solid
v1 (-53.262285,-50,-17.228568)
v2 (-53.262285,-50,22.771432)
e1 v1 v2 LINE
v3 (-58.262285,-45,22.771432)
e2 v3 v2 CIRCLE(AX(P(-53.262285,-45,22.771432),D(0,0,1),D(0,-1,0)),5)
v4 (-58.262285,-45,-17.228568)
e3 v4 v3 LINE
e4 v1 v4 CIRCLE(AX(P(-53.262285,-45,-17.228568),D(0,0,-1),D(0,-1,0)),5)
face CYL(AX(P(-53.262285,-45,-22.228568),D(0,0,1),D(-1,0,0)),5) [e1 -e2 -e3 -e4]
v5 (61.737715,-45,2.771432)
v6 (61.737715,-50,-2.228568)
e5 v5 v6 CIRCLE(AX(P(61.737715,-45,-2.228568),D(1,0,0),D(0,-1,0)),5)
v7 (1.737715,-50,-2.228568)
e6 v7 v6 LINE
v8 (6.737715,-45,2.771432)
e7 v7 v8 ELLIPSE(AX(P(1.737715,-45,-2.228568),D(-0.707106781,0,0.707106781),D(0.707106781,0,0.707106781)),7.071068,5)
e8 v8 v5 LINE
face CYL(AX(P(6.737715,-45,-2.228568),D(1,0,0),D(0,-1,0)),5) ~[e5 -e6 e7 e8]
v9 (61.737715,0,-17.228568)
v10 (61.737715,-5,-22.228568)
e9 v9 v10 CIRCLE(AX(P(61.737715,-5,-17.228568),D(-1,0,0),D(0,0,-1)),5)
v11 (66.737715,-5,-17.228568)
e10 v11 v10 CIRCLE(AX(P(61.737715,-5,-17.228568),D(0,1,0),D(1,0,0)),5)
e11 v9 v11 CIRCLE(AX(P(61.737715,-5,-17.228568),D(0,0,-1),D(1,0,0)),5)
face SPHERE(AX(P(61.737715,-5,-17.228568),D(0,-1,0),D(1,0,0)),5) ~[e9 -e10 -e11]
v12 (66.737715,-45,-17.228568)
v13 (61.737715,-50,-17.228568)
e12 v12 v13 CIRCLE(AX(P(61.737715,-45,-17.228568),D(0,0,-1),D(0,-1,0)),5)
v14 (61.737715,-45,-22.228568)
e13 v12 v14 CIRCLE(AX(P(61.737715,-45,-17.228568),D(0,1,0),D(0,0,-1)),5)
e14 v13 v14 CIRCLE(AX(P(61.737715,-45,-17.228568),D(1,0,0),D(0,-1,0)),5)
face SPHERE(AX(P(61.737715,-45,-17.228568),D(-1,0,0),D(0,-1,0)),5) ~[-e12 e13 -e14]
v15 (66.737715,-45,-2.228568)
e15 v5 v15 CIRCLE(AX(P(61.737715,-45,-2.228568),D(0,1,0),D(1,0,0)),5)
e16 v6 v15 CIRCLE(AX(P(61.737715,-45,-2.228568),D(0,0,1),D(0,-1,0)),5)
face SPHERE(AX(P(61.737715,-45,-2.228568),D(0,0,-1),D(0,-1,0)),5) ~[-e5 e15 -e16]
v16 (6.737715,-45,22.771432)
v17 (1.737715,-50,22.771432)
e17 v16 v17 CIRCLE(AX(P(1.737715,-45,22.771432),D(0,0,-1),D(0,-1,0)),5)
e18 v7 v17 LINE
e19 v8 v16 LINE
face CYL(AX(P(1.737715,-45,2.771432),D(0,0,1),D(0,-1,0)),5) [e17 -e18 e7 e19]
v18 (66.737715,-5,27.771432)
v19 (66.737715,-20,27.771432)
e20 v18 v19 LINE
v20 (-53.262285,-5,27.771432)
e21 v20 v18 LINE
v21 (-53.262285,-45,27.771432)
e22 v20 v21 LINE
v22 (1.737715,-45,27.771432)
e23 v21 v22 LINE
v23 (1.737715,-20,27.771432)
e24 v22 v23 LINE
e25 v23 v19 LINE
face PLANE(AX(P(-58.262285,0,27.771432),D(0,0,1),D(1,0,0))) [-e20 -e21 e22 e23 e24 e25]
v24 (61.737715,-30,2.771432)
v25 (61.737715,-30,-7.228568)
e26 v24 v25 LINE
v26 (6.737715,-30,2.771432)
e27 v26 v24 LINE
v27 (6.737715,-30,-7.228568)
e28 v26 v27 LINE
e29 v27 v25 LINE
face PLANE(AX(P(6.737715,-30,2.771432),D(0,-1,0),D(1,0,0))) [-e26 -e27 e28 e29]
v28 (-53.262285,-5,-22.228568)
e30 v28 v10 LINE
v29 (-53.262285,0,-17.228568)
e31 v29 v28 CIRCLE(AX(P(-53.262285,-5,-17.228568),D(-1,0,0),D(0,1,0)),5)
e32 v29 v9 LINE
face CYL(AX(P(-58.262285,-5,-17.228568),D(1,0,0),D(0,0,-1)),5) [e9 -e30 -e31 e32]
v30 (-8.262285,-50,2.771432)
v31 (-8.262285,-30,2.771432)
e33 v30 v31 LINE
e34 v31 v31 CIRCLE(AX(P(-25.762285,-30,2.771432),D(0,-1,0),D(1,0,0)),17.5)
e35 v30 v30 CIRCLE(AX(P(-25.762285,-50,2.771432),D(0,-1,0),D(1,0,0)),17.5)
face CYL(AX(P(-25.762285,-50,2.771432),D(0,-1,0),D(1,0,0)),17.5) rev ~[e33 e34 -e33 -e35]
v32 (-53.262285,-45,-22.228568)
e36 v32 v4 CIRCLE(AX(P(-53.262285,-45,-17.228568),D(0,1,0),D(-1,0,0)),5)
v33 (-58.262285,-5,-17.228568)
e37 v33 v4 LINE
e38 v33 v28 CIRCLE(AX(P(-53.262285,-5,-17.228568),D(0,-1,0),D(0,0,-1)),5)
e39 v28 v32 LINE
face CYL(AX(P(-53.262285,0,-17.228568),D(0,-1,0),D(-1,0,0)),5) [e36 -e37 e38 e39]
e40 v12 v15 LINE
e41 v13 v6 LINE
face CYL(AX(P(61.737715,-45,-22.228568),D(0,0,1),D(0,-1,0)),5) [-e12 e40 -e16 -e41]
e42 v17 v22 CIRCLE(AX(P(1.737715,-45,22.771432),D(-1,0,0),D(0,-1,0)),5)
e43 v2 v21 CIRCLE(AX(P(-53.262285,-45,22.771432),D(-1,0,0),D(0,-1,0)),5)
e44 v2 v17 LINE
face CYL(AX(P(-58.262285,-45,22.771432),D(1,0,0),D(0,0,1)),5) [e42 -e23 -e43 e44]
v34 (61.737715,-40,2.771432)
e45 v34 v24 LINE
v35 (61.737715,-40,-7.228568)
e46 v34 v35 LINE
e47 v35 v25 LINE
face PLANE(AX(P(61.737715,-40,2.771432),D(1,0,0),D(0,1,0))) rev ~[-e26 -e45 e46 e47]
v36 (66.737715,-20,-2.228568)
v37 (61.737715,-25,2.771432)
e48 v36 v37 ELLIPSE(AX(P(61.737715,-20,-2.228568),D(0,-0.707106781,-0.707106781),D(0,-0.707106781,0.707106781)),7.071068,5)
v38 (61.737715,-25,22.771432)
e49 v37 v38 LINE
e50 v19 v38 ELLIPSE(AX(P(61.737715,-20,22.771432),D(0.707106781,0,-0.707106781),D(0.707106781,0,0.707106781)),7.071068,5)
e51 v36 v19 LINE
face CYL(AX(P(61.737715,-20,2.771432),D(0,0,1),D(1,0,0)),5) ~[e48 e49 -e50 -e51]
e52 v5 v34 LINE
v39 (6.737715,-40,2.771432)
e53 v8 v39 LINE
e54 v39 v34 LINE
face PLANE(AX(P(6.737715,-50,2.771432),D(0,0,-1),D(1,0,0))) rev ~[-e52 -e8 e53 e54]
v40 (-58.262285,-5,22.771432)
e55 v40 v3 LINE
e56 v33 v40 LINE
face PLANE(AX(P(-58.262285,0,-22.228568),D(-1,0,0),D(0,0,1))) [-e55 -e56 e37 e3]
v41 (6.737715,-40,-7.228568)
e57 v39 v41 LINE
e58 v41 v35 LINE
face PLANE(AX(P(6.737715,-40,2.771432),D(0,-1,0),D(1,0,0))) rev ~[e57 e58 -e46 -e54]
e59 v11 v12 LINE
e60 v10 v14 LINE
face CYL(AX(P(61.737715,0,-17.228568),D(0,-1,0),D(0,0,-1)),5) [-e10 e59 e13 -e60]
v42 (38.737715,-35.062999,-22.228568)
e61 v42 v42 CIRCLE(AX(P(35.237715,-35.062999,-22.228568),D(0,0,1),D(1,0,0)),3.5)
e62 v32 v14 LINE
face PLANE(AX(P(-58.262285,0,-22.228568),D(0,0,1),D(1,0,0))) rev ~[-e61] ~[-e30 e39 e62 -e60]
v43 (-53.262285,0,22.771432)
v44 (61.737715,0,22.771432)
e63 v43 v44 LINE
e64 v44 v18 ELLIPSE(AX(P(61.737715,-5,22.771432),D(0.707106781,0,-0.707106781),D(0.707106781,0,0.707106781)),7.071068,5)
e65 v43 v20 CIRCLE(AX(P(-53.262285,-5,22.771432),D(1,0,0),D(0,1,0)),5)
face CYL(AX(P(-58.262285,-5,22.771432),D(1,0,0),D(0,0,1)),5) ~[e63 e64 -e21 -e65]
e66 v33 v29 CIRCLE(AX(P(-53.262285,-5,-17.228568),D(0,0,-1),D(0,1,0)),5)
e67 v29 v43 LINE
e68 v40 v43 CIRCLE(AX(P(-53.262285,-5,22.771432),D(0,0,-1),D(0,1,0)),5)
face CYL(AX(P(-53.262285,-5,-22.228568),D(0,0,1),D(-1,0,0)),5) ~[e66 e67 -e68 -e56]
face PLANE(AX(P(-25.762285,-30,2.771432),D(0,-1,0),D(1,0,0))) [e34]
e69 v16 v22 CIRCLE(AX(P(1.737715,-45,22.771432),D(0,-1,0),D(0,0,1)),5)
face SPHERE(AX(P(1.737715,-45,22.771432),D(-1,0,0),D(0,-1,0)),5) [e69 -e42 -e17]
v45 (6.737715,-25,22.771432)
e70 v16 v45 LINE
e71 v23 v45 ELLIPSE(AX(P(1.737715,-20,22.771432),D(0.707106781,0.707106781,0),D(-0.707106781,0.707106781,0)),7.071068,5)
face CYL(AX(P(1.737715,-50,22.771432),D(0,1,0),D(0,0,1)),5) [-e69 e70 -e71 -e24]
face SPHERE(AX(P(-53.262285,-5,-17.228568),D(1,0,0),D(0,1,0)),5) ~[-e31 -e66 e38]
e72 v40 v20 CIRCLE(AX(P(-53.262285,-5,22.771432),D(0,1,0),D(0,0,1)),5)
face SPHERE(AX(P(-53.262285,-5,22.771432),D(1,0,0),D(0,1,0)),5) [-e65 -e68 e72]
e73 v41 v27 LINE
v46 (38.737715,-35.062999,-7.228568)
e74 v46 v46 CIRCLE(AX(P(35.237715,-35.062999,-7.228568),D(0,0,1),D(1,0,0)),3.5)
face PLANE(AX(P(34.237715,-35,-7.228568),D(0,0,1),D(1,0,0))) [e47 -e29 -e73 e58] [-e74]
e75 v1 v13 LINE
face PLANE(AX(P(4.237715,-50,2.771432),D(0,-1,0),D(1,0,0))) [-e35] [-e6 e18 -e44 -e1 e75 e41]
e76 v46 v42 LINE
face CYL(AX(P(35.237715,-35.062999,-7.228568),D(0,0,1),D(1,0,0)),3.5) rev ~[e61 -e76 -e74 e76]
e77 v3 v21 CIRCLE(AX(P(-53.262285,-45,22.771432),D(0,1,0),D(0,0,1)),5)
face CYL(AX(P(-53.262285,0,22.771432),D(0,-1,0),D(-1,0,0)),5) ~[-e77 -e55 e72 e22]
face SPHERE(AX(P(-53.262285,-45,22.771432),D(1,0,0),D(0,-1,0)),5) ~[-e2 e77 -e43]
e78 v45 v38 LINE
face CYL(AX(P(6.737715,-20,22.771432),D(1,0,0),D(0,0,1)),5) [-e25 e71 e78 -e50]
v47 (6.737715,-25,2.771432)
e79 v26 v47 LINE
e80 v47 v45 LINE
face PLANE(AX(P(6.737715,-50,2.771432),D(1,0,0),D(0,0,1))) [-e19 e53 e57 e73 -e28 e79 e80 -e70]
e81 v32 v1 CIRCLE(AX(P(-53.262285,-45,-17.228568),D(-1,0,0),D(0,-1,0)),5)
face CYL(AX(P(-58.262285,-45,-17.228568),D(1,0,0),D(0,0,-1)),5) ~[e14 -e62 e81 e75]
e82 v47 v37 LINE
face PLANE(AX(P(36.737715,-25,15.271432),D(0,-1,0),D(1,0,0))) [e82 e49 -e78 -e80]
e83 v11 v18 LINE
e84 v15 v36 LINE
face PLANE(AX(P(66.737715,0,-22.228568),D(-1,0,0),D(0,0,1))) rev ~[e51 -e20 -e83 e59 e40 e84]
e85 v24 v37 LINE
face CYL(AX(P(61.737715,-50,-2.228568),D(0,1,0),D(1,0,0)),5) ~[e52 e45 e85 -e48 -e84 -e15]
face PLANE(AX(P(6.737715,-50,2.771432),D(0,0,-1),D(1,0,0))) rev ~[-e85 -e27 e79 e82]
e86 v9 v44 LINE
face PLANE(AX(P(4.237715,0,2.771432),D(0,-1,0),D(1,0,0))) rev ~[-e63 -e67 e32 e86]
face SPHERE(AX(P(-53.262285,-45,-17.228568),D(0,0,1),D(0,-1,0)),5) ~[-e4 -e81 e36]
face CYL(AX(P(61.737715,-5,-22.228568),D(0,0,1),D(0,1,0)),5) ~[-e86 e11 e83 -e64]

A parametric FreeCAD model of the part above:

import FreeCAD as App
import Part
import Sketcher
Q = App.Units.Quantity


def edges_at(feature, points):
    """Names of the edges that pass closest to the given points."""
    edges = feature.Shape.Edges
    near = lambda p: min(range(len(edges)), key=lambda i: edges[i].distToShape(Part.Vertex(*p))[0])
    return sorted({f"Edge{near(p) + 1}" for p in points})

doc = App.newDocument("Part")
body = doc.addObject("PartDesign::Body", "Body")

# Sketch on XZ plane
sketch1 = body.newObject("Sketcher::SketchObject", "Sketch")
sketch1.AttachmentSupport = (doc.getObject("XZ_Plane"), [""])
sketch1.MapMode = "FlatFace"
sketch1.addGeometry([
    Part.LineSegment(App.Vector(-58, 28, 0), App.Vector(-58, -22, 0)),
    Part.LineSegment(App.Vector(-58, -22, 0), App.Vector(67, -22, 0)),
    Part.LineSegment(App.Vector(67, -22, 0), App.Vector(67, 28, 0)),
    Part.LineSegment(App.Vector(67, 28, 0), App.Vector(-58, 28, 0)),
], False)
sketch1.addConstraint([
    Sketcher.Constraint("Coincident", 0, 2, 1, 1),
    Sketcher.Constraint("Coincident", 1, 2, 2, 1),
    Sketcher.Constraint("Coincident", 2, 2, 3, 1),
    Sketcher.Constraint("Coincident", 3, 2, 0, 1),
    Sketcher.Constraint("Vertical", 0),
    Sketcher.Constraint("Horizontal", 1),
    Sketcher.Constraint("Vertical", 2),
    Sketcher.Constraint("Horizontal", 3),
    Sketcher.Constraint("DistanceX", 1, 1, 1, 2, Q("125 mm")),
    Sketcher.Constraint("DistanceY", 0, 2, 0, 1, Q("50 mm")),
    Sketcher.Constraint("DistanceY", 0, 2, -1, 1, Q("22.228568 mm")),
    Sketcher.Constraint("DistanceX", 0, 2, -1, 1, Q("58.262285 mm")),
])
pad1 = body.newObject("PartDesign::Pad", "Pad")
pad1.Profile = sketch1
pad1.Length = 50

# Sketch on XZ plane
sketch2 = body.newObject("Sketcher::SketchObject", "Sketch001")
sketch2.AttachmentSupport = (doc.getObject("XZ_Plane"), [""])
sketch2.MapMode = "FlatFace"
sketch2.AttachmentOffset = App.Placement(App.Vector(0, 0, 50), App.Rotation())
sketch2.addGeometry([
    Part.LineSegment(App.Vector(7, 28, 0), App.Vector(7, 3, 0)),
    Part.LineSegment(App.Vector(7, 3, 0), App.Vector(67, 3, 0)),
    Part.LineSegment(App.Vector(67, 3, 0), App.Vector(67, 28, 0)),
    Part.LineSegment(App.Vector(67, 28, 0), App.Vector(7, 28, 0)),
], False)
sketch2.addConstraint([
    Sketcher.Constraint("Coincident", 0, 2, 1, 1),
    Sketcher.Constraint("Coincident", 1, 2, 2, 1),
    Sketcher.Constraint("Coincident", 2, 2, 3, 1),
    Sketcher.Constraint("Coincident", 3, 2, 0, 1),
    Sketcher.Constraint("Vertical", 0),
    Sketcher.Constraint("Horizontal", 1),
    Sketcher.Constraint("Vertical", 2),
    Sketcher.Constraint("Horizontal", 3),
    Sketcher.Constraint("DistanceX", 1, 1, 1, 2, Q("60 mm")),
    Sketcher.Constraint("DistanceY", 0, 2, 0, 1, Q("25 mm")),
    Sketcher.Constraint("DistanceY", -1, 1, 0, 2, Q("2.771432 mm")),
    Sketcher.Constraint("DistanceX", -1, 1, 0, 2, Q("6.737715 mm")),
])
pocket1 = body.newObject("PartDesign::Pocket", "Pocket")
pocket1.Profile = sketch2
pocket1.Length = 25

# Sketch on XZ plane
sketch3 = body.newObject("Sketcher::SketchObject", "Sketch002")
sketch3.AttachmentSupport = (doc.getObject("XZ_Plane"), [""])
sketch3.MapMode = "FlatFace"
sketch3.AttachmentOffset = App.Placement(App.Vector(0, 0, 50), App.Rotation())
sketch3.addGeometry(Part.Circle(App.Vector(-26, 3, 0), App.Vector(0, 0, 1), 18), False)
sketch3.addConstraint([
    Sketcher.Constraint("Diameter", 0, Q("35 mm")),
    Sketcher.Constraint("DistanceY", -1, 1, 0, 3, Q("2.771432 mm")),
    Sketcher.Constraint("DistanceX", 0, 3, -1, 1, Q("25.762285 mm")),
])
pocket2 = body.newObject("PartDesign::Pocket", "Pocket001")
pocket2.Profile = sketch3
pocket2.Length = 20
doc.recompute()

fillet = body.newObject("PartDesign::Fillet", "Fillet")
fillet.Base = (pocket2, edges_at(pocket2, [
    (-25.762, -50, 27.771),
    (-58.262, -50, 2.771),
    (4.238, -50, -22.229),
    (66.738, -50, -9.729),
    (36.738, -50, 2.771),
    (6.738, -50, 15.271),
    (6.738, -37.5, 27.771),
    (36.738, -25, 27.771),
    (66.738, -25, 15.271),
    (66.738, -37.5, 2.771),
    (66.738, -25, -22.229),
    (66.738, 0, 2.771),
    (4.238, 0, 27.771),
    (4.238, 0, -22.229),
    (-58.262, 0, 2.771),
    (-58.262, -25, 27.771),
    (-58.262, -25, -22.229),
]))
fillet.Radius = 5

# Sketch on XY plane
sketch4 = body.newObject("Sketcher::SketchObject", "Sketch003")
sketch4.AttachmentSupport = (doc.getObject("XY_Plane"), [""])
sketch4.MapMode = "FlatFace"
sketch4.AttachmentOffset = App.Placement(App.Vector(0, 0, 2.771432), App.Rotation())
sketch4.addGeometry([
    Part.LineSegment(App.Vector(7, -30, 0), App.Vector(7, -40, 0)),
    Part.LineSegment(App.Vector(7, -40, 0), App.Vector(62, -40, 0)),
    Part.LineSegment(App.Vector(62, -40, 0), App.Vector(62, -30, 0)),
    Part.LineSegment(App.Vector(62, -30, 0), App.Vector(7, -30, 0)),
], False)
sketch4.addConstraint([
    Sketcher.Constraint("Coincident", 0, 2, 1, 1),
    Sketcher.Constraint("Coincident", 1, 2, 2, 1),
    Sketcher.Constraint("Coincident", 2, 2, 3, 1),
    Sketcher.Constraint("Coincident", 3, 2, 0, 1),
    Sketcher.Constraint("Vertical", 0),
    Sketcher.Constraint("Horizontal", 1),
    Sketcher.Constraint("Vertical", 2),
    Sketcher.Constraint("Horizontal", 3),
    Sketcher.Constraint("DistanceX", 1, 1, 1, 2, Q("55 mm")),
    Sketcher.Constraint("DistanceY", 0, 2, 0, 1, Q("10 mm")),
    Sketcher.Constraint("DistanceY", 0, 2, -1, 1, Q("40 mm")),
    Sketcher.Constraint("DistanceX", -1, 1, 0, 2, Q("6.737715 mm")),
])
pocket3 = body.newObject("PartDesign::Pocket", "Pocket002")
pocket3.Profile = sketch4
pocket3.Length = 10

# Sketch on XY plane
sketch5 = body.newObject("Sketcher::SketchObject", "Sketch004")
sketch5.AttachmentSupport = (doc.getObject("XY_Plane"), [""])
sketch5.MapMode = "FlatFace"
sketch5.AttachmentOffset = App.Placement(App.Vector(0, 0, -7.228568), App.Rotation())
sketch5.addGeometry(Part.Circle(App.Vector(35.2, -35.1, 0), App.Vector(0, 0, 1), 3.5), False)
sketch5.addConstraint([
    Sketcher.Constraint("Diameter", 0, Q("7 mm")),
    Sketcher.Constraint("DistanceY", 0, 3, -1, 1, Q("35.062999 mm")),
    Sketcher.Constraint("DistanceX", -1, 1, 0, 3, Q("35.237715 mm")),
])
pocket4 = body.newObject("PartDesign::Pocket", "Pocket003")
pocket4.Profile = sketch5
pocket4.Length = 25

doc.recompute()
